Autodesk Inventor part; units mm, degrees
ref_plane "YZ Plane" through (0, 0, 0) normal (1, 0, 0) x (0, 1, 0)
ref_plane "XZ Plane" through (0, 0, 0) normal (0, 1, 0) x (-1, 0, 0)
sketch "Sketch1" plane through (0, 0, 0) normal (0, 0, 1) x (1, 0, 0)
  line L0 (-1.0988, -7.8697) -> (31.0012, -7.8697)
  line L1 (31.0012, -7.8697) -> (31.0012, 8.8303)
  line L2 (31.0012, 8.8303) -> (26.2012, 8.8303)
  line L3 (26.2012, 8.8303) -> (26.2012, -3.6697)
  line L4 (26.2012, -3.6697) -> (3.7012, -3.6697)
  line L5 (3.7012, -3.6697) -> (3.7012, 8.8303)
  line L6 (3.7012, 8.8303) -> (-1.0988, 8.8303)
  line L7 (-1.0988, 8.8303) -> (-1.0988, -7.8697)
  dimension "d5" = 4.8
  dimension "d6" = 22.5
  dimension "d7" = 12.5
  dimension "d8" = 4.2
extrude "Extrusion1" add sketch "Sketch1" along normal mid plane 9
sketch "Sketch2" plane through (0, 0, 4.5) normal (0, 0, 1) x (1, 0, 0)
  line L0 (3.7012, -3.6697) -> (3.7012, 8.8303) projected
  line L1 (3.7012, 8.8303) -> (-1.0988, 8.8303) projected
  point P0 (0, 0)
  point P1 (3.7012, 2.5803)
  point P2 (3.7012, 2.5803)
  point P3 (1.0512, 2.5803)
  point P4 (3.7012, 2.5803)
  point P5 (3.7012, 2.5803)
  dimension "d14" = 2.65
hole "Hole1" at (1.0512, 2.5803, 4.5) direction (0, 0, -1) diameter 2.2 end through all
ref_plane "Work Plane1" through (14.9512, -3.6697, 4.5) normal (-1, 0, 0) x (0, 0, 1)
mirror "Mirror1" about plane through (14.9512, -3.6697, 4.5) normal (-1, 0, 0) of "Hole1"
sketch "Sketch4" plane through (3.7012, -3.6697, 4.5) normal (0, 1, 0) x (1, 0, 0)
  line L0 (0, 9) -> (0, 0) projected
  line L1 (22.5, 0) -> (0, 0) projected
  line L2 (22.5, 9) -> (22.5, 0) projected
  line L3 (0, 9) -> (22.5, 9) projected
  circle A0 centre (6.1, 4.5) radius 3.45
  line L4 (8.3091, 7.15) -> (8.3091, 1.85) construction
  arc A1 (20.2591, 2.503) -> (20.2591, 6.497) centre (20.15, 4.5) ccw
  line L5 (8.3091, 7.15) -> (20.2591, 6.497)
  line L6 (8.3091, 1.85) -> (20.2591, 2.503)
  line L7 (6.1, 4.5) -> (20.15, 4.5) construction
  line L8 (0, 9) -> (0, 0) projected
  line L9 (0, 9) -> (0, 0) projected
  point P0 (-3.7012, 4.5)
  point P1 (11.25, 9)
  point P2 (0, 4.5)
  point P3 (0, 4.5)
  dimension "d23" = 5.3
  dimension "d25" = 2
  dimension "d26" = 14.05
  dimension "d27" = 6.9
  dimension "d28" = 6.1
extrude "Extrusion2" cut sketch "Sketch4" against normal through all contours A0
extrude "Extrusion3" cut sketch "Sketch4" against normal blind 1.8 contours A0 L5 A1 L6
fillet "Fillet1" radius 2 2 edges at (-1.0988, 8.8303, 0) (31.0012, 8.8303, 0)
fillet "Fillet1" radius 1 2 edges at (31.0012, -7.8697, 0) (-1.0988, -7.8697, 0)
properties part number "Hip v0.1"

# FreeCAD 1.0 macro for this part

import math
import FreeCAD as App
import Part
import Sketcher
Q = App.Units.Quantity


def edges_at(feature, points):
    """Names of the edges that pass closest to the given points."""
    edges = feature.Shape.Edges
    near = lambda p: min(range(len(edges)), key=lambda i: edges[i].distToShape(Part.Vertex(*p))[0])
    return sorted({f"Edge{near(p) + 1}" for p in points})


def add_polygon(sketch, points):
    """Adds a closed chain of lines whose ends are joined by coincident constraints."""
    first, n = sketch.GeometryCount, len(points)
    for a, b in zip(points, points[1:] + points[:1]):
        sketch.addGeometry(Part.LineSegment(App.Vector(*a, 0), App.Vector(*b, 0)), False)
    for i in range(n):
        sketch.addConstraint(Sketcher.Constraint("Coincident", first + i, 2, first + (i + 1) % n, 1))

doc = App.newDocument("Part")
body = doc.addObject("PartDesign::Body", "Body")

# Sketch on XY plane
sketch1 = doc.addObject("Sketcher::SketchObject", "Sketch")
body.addObject(sketch1)
sketch1.AttachmentSupport = (doc.XY_Plane, [""])
sketch1.MapMode = "FlatFace"
add_polygon(sketch1, [(-1.1, 8.8), (-1.1, -7.9), (31, -7.9), (31, 8.8), (26.2, 8.8), (26.2, -3.7), (3.7, -3.7), (3.7, 8.8)])  # lines 0-7
sketch1.addConstraint([
    Sketcher.Constraint("Vertical", 0),
    Sketcher.Constraint("Horizontal", 1),
    Sketcher.Constraint("Vertical", 2),
    Sketcher.Constraint("Horizontal", 3),
    Sketcher.Constraint("Vertical", 4),
    Sketcher.Constraint("Horizontal", 5),
    Sketcher.Constraint("Vertical", 6),
    Sketcher.Constraint("Horizontal", 7),
    Sketcher.Constraint("Horizontal", 3, 2, 6, 2),
    Sketcher.Constraint("Equal", 3, 7),
    Sketcher.Constraint("DistanceX", 3, 2, 3, 1, Q("4.8 mm")),
    Sketcher.Constraint("DistanceX", 5, 2, 5, 1, Q("22.5 mm")),
    Sketcher.Constraint("DistanceY", 4, 2, 4, 1, Q("12.5 mm")),
    Sketcher.Constraint("DistanceY", 1, 2, 4, 2, Q("4.2 mm")),
    Sketcher.Constraint("DistanceX", 0, 2, -1, 1, Q("1.0988 mm")),
    Sketcher.Constraint("DistanceY", 0, 2, -1, 1, Q("7.8697 mm")),
])
pad1 = doc.addObject("PartDesign::Pad", "Pad")
body.addObject(pad1)
pad1.Profile = sketch1
pad1.Length = 9
pad1.Midplane = True

# Sketch on XY plane
sketch2 = doc.addObject("Sketcher::SketchObject", "Sketch001")
body.addObject(sketch2)
sketch2.AttachmentSupport = (doc.XY_Plane, [""])
sketch2.MapMode = "FlatFace"
sketch2.AttachmentOffset = App.Placement(App.Vector(0, 0, 4.5), App.Rotation())
sketch2.addGeometry(Part.Circle(App.Vector(1.1, 2.6, 0), App.Vector(0, 0, 1), 1.1), False)
sketch2.addConstraint([
    Sketcher.Constraint("Diameter", 0, Q("2.2 mm")),
    Sketcher.Constraint("DistanceX", -1, 1, 0, 3, Q("1.0512 mm")),
    Sketcher.Constraint("DistanceY", -1, 1, 0, 3, Q("2.5803 mm")),
])
doc.recompute()
hole = doc.addObject("PartDesign::Hole", "Hole")
body.addObject(hole)
hole.Profile = sketch2
hole.ThreadType = "None"
hole.Diameter = 2.2
hole.DepthType = "ThroughAll"
doc.recompute()

datumplane = doc.addObject("PartDesign::Plane", "DatumPlane")
body.addObject(datumplane)
datumplane.AttachmentSupport = (doc.YZ_Plane, [""])
datumplane.MapMode = "FlatFace"
datumplane.AttachmentOffset = App.Placement(App.Vector(0, 0, 14.9512), App.Rotation())
mirrored = doc.addObject("PartDesign::Mirrored", "Mirrored")
body.addObject(mirrored)
mirrored.Originals = [hole]
mirrored.MirrorPlane = (datumplane, [""])
body.Tip = mirrored

# Sketch on XZ plane
sketch3 = doc.addObject("Sketcher::SketchObject", "Sketch002")
body.addObject(sketch3)
sketch3.AttachmentSupport = (doc.XZ_Plane, [""])
sketch3.MapMode = "FlatFace"
sketch3.AttachmentOffset = App.Placement(App.Vector(0, 0, 3.6697), App.Rotation())
sketch3.addGeometry(Part.Circle(App.Vector(9.8, 0, 0), App.Vector(0, 0, 1), 3.5), False)
sketch3.addConstraint([
    Sketcher.Constraint("PointOnObject", 0, 3, -1),
    Sketcher.Constraint("Diameter", 0, Q("6.9 mm")),
    Sketcher.Constraint("DistanceX", -1, 1, 0, 3, Q("9.8012 mm")),
])
pocket1 = doc.addObject("PartDesign::Pocket", "Pocket")
body.addObject(pocket1)
pocket1.Profile = sketch3
pocket1.Type = "ThroughAll"
pocket1.Reversed = True

# Sketch on XZ plane
sketch4 = doc.addObject("Sketcher::SketchObject", "Sketch003")
body.addObject(sketch4)
sketch4.AttachmentSupport = (doc.XZ_Plane, [""])
sketch4.MapMode = "FlatFace"
sketch4.AttachmentOffset = App.Placement(App.Vector(0, 0, 3.6697), App.Rotation())
sketch4.addGeometry([
    Part.ArcOfCircle(Part.Circle(App.Vector(9.8, 0, 0), App.Vector(0, 0, 1), 3.5), math.radians(-50), math.radians(50)),
    Part.LineSegment(App.Vector(12, 2.6, 0), App.Vector(24, 2, 0)),
    Part.ArcOfCircle(Part.Circle(App.Vector(23.9, 0, 0), App.Vector(0, 0, 1), 2), math.radians(-87), math.radians(87)),
    Part.LineSegment(App.Vector(24, -2, 0), App.Vector(12, -2.6, 0)),
], False)
sketch4.addConstraint([
    Sketcher.Constraint("Coincident", 0, 2, 1, 1),
    Sketcher.Constraint("Tangent", 1, 2, 2, 2),
    Sketcher.Constraint("Tangent", 2, 1, 3, 1),
    Sketcher.Constraint("Coincident", 3, 2, 0, 1),
    Sketcher.Constraint("Symmetric", 1, 2, 2, 1, -1),
    Sketcher.Constraint("PointOnObject", 0, 3, -1),
    Sketcher.Constraint("Radius", 2, Q("2 mm")),
    Sketcher.Constraint("Radius", 0, Q("3.45 mm")),
    Sketcher.Constraint("DistanceY", 3, 2, 0, 2, Q("5.3 mm")),
    Sketcher.Constraint("DistanceX", 0, 3, 2, 3, Q("14.05 mm")),
    Sketcher.Constraint("DistanceX", -1, 1, 0, 3, Q("9.8012 mm")),
])
pocket2 = doc.addObject("PartDesign::Pocket", "Pocket001")
body.addObject(pocket2)
pocket2.Profile = sketch4
pocket2.Length = 1.8
pocket2.Reversed = True
doc.recompute()

fillet = doc.addObject("PartDesign::Fillet", "Fillet")
body.addObject(fillet)
fillet.Base = (pocket2, edges_at(pocket2, [(-1.099, 8.83, 0), (31.001, 8.83, 0)]))
fillet.Radius = 2
doc.recompute()

fillet2 = doc.addObject("PartDesign::Fillet", "Fillet001")
body.addObject(fillet2)
fillet2.Base = (fillet, edges_at(fillet, [(31.001, -7.87, 0), (-1.099, -7.87, 0)]))
fillet2.Radius = 1

doc.recompute()
